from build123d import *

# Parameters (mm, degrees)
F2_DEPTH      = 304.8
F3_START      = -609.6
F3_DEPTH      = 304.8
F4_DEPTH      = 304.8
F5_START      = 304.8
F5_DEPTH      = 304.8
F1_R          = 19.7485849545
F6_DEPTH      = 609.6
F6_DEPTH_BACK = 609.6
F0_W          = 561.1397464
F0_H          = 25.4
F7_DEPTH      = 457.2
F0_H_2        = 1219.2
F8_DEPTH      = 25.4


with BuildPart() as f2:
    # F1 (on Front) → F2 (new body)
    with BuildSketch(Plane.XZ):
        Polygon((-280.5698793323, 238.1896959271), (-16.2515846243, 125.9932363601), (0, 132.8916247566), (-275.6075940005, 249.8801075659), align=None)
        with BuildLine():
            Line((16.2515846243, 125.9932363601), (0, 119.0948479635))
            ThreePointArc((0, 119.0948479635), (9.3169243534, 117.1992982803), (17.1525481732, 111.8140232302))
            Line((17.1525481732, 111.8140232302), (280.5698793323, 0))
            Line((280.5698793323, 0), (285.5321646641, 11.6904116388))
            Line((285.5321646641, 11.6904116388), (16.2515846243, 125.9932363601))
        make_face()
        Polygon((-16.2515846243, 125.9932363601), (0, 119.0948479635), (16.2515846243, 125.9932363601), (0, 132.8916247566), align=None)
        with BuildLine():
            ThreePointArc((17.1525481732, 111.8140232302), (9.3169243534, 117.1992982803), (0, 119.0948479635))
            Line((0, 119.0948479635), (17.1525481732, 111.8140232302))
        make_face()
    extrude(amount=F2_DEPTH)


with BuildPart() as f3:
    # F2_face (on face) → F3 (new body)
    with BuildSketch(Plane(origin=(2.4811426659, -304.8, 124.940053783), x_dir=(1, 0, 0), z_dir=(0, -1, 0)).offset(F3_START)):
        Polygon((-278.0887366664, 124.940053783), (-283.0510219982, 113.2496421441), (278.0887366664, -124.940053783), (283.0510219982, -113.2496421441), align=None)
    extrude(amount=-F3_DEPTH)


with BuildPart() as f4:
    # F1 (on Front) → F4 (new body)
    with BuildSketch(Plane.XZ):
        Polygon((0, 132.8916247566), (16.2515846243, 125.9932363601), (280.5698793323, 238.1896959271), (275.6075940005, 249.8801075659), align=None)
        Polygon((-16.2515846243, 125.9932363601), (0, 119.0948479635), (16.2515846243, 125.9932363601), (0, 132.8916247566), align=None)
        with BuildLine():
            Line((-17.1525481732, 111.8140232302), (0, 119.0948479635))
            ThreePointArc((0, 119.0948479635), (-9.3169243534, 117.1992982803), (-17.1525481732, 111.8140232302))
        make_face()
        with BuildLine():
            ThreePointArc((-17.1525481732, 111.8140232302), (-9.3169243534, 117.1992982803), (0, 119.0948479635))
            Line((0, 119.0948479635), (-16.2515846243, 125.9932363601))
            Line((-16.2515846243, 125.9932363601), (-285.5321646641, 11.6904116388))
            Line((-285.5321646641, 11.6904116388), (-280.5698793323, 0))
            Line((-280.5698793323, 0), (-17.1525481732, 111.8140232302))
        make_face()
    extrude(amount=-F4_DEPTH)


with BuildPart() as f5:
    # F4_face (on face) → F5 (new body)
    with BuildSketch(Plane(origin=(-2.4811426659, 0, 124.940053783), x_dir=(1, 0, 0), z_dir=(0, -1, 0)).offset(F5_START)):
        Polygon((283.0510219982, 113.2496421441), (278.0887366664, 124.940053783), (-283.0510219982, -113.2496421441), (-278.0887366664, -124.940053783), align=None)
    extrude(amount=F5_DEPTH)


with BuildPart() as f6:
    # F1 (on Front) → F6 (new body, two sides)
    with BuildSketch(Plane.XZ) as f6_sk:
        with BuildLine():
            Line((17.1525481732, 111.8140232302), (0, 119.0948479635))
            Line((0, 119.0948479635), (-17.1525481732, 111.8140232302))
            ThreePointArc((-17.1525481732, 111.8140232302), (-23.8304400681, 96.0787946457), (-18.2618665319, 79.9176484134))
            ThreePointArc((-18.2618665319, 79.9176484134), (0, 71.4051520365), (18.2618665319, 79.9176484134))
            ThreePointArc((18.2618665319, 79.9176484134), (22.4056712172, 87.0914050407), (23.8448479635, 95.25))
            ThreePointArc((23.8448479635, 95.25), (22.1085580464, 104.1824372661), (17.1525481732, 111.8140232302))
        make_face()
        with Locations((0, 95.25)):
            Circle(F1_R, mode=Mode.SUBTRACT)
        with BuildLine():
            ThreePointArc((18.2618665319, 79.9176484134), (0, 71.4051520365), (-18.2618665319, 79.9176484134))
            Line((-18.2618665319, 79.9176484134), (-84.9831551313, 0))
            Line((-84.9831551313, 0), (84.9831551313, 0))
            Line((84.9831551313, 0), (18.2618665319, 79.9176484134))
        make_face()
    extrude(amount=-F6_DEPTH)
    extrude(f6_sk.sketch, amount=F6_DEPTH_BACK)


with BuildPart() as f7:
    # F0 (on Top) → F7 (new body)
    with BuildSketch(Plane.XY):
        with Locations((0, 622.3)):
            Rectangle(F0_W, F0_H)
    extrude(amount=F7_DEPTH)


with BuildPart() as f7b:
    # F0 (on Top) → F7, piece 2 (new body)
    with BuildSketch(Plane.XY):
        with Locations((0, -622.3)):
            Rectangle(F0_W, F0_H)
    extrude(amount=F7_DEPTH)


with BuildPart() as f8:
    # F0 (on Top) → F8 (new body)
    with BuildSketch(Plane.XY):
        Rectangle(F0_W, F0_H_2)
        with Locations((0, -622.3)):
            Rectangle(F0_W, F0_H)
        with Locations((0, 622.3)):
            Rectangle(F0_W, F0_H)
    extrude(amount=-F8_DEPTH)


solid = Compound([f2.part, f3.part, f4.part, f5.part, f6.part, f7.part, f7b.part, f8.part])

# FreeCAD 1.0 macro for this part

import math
import FreeCAD as App
import Part
import Sketcher
Q = App.Units.Quantity

doc = App.newDocument("Part")
body = doc.addObject("PartDesign::Body", "Body")

# Sketch on XZ plane
sketch1 = body.newObject("Sketcher::SketchObject", "Sketch")
sketch1.AttachmentSupport = (doc.getObject("XZ_Plane"), [""])
sketch1.MapMode = "FlatFace"
sketch1.addGeometry([
    Part.LineSegment(App.Vector(-280.569879, 238.189696, 0), App.Vector(-16.251585, 125.993236, 0)),  # 0
    Part.LineSegment(App.Vector(-16.251585, 125.993236, 0), App.Vector(0, 119.094848, 0)),  # 1
    Part.LineSegment(App.Vector(0, 119.094848, 0), App.Vector(17.152548, 111.814023, 0)),  # 2
    Part.LineSegment(App.Vector(17.152548, 111.814023, 0), App.Vector(280.569879, 0, 0)),  # 3
    Part.LineSegment(App.Vector(280.569879, 0, 0), App.Vector(285.532165, 11.690412, 0)),  # 4
    Part.LineSegment(App.Vector(285.532165, 11.690412, 0), App.Vector(-275.607594, 249.880108, 0)),  # 5
    Part.LineSegment(App.Vector(-275.607594, 249.880108, 0), App.Vector(-280.569879, 238.189696, 0)),  # 6
], False)
sketch1.addConstraint([
    Sketcher.Constraint("Coincident", 0, 2, 1, 1),
    Sketcher.Constraint("Coincident", 1, 2, 2, 1),
    Sketcher.Constraint("Coincident", 2, 2, 3, 1),
    Sketcher.Constraint("Coincident", 3, 2, 4, 1),
    Sketcher.Constraint("Coincident", 4, 2, 5, 1),
    Sketcher.Constraint("Coincident", 5, 2, 6, 1),
    Sketcher.Constraint("Coincident", 6, 2, 0, 1),
    Sketcher.Constraint("PointOnObject", 1, 2, -2),
    Sketcher.Constraint("PointOnObject", 3, 2, -1),
    Sketcher.Constraint("Parallel", 0, 1),
    Sketcher.Constraint("Parallel", 1, 2),
    Sketcher.Constraint("Parallel", 2, 3),
    Sketcher.Constraint("Perpendicular", 3, 4),
    Sketcher.Constraint("Perpendicular", 4, 5),
    Sketcher.Constraint("Perpendicular", 5, 6),
    Sketcher.Constraint("Distance", 5, Q("24 in")),
    Sketcher.Constraint("Angle", 0, Q("-23 deg")),
    Sketcher.Constraint("Distance", 4, Q("0.5 in")),
    Sketcher.Constraint("Distance", 2, 18.633849),
    Sketcher.Constraint("Distance", 3, 286.166151),
    Sketcher.Constraint("DistanceY", 1, 2, 0, 2, 6.898388),
])
pad1 = body.newObject("PartDesign::Pad", "Pad")
pad1.Profile = sketch1
pad1.Length = Q("12 in")
body2 = doc.addObject("PartDesign::Body", "Body001")

# Sketch on XZ plane
sketch2 = body2.newObject("Sketcher::SketchObject", "Sketch001")
sketch2.AttachmentSupport = (doc.getObject("XZ_Plane001"), [""])
sketch2.MapMode = "FlatFace"
sketch2.AttachmentOffset = App.Placement(App.Vector(0, 0, -12 * 25.4), App.Rotation())
sketch2.addGeometry([
    Part.LineSegment(App.Vector(-275.607594, 249.880108, 0), App.Vector(-280.569879, 238.189696, 0)),
    Part.LineSegment(App.Vector(-280.569879, 238.189696, 0), App.Vector(280.569879, 0, 0)),
    Part.LineSegment(App.Vector(280.569879, 0, 0), App.Vector(285.532165, 11.690412, 0)),
    Part.LineSegment(App.Vector(285.532165, 11.690412, 0), App.Vector(-275.607594, 249.880108, 0)),
], False)
sketch2.addConstraint([
    Sketcher.Constraint("Coincident", 0, 2, 1, 1),
    Sketcher.Constraint("Coincident", 1, 2, 2, 1),
    Sketcher.Constraint("Coincident", 2, 2, 3, 1),
    Sketcher.Constraint("Coincident", 3, 2, 0, 1),
    Sketcher.Constraint("PointOnObject", 1, 2, -1),
    Sketcher.Constraint("Perpendicular", 0, 1),
    Sketcher.Constraint("Perpendicular", 1, 2),
    Sketcher.Constraint("Perpendicular", 2, 3),
    Sketcher.Constraint("Distance", 1, Q("24 in")),
    Sketcher.Constraint("Angle", 0, Q("-113 deg")),
    Sketcher.Constraint("Distance", 0, Q("0.5 in")),
    Sketcher.Constraint("DistanceX", 0, 2, -1, 1, 280.569879),
])
pad2 = body2.newObject("PartDesign::Pad", "Pad001")
pad2.Profile = sketch2
pad2.Length = Q("12 in")
pad2.Reversed = True
body3 = doc.addObject("PartDesign::Body", "Body002")

# Sketch on XZ plane
sketch3 = body3.newObject("Sketcher::SketchObject", "Sketch002")
sketch3.AttachmentSupport = (doc.getObject("XZ_Plane002"), [""])
sketch3.MapMode = "FlatFace"
sketch3.addGeometry([
    Part.LineSegment(App.Vector(16.251585, 125.993236, 0), App.Vector(280.569879, 238.189696, 0)),  # 0
    Part.LineSegment(App.Vector(280.569879, 238.189696, 0), App.Vector(275.607594, 249.880108, 0)),  # 1
    Part.LineSegment(App.Vector(275.607594, 249.880108, 0), App.Vector(-285.532165, 11.690412, 0)),  # 2
    Part.LineSegment(App.Vector(-285.532165, 11.690412, 0), App.Vector(-280.569879, 0, 0)),  # 3
    Part.LineSegment(App.Vector(-280.569879, 0, 0), App.Vector(-17.152548, 111.814023, 0)),  # 4
    Part.LineSegment(App.Vector(-17.152548, 111.814023, 0), App.Vector(0, 119.094848, 0)),  # 5
    Part.LineSegment(App.Vector(0, 119.094848, 0), App.Vector(16.251585, 125.993236, 0)),  # 6
], False)
sketch3.addConstraint([
    Sketcher.Constraint("Coincident", 0, 2, 1, 1),
    Sketcher.Constraint("Coincident", 1, 2, 2, 1),
    Sketcher.Constraint("Coincident", 2, 2, 3, 1),
    Sketcher.Constraint("Coincident", 3, 2, 4, 1),
    Sketcher.Constraint("Coincident", 4, 2, 5, 1),
    Sketcher.Constraint("Coincident", 5, 2, 6, 1),
    Sketcher.Constraint("Coincident", 6, 2, 0, 1),
    Sketcher.Constraint("PointOnObject", 3, 2, -1),
    Sketcher.Constraint("PointOnObject", 5, 2, -2),
    Sketcher.Constraint("Perpendicular", 0, 1),
    Sketcher.Constraint("Perpendicular", 1, 2),
    Sketcher.Constraint("Perpendicular", 2, 3),
    Sketcher.Constraint("Perpendicular", 3, 4),
    Sketcher.Constraint("Parallel", 4, 5),
    Sketcher.Constraint("Parallel", 5, 6),
    Sketcher.Constraint("Distance", 2, Q("24 in")),
    Sketcher.Constraint("Angle", 0, Q("23 deg")),
    Sketcher.Constraint("Distance", 1, Q("0.5 in")),
    Sketcher.Constraint("Distance", 4, 286.166151),
    Sketcher.Constraint("Distance", 5, 18.633849),
    Sketcher.Constraint("DistanceY", 5, 2, 6, 2, 6.898388),
])
pad3 = body3.newObject("PartDesign::Pad", "Pad002")
pad3.Profile = sketch3
pad3.Length = Q("12 in")
pad3.Reversed = True
body4 = doc.addObject("PartDesign::Body", "Body003")

# Sketch on XZ plane
sketch4 = body4.newObject("Sketcher::SketchObject", "Sketch003")
sketch4.AttachmentSupport = (doc.getObject("XZ_Plane003"), [""])
sketch4.MapMode = "FlatFace"
sketch4.AttachmentOffset = App.Placement(App.Vector(0, 0, 12 * 25.4), App.Rotation())
sketch4.addGeometry([
    Part.LineSegment(App.Vector(280.569879, 238.189696, 0), App.Vector(275.607594, 249.880108, 0)),
    Part.LineSegment(App.Vector(275.607594, 249.880108, 0), App.Vector(-285.532165, 11.690412, 0)),
    Part.LineSegment(App.Vector(-285.532165, 11.690412, 0), App.Vector(-280.569879, 0, 0)),
    Part.LineSegment(App.Vector(-280.569879, 0, 0), App.Vector(280.569879, 238.189696, 0)),
], False)
sketch4.addConstraint([
    Sketcher.Constraint("Coincident", 0, 2, 1, 1),
    Sketcher.Constraint("Coincident", 1, 2, 2, 1),
    Sketcher.Constraint("Coincident", 2, 2, 3, 1),
    Sketcher.Constraint("Coincident", 3, 2, 0, 1),
    Sketcher.Constraint("PointOnObject", 2, 2, -1),
    Sketcher.Constraint("Perpendicular", 0, 1),
    Sketcher.Constraint("Perpendicular", 1, 2),
    Sketcher.Constraint("Perpendicular", 2, 3),
    Sketcher.Constraint("Distance", 1, Q("24 in")),
    Sketcher.Constraint("Angle", 0, Q("113 deg")),
    Sketcher.Constraint("Distance", 0, Q("0.5 in")),
    Sketcher.Constraint("DistanceX", 2, 2, -1, 1, 280.569879),
])
pad4 = body4.newObject("PartDesign::Pad", "Pad003")
pad4.Profile = sketch4
pad4.Length = Q("12 in")
body5 = doc.addObject("PartDesign::Body", "Body004")

# Sketch on XZ plane
sketch5 = body5.newObject("Sketcher::SketchObject", "Sketch004")
sketch5.AttachmentSupport = (doc.getObject("XZ_Plane004"), [""])
sketch5.MapMode = "FlatFace"
sketch5.addGeometry([
    Part.LineSegment(App.Vector(17.152548, 111.814023, 0), App.Vector(0, 119.094848, 0)),  # 0
    Part.LineSegment(App.Vector(0, 119.094848, 0), App.Vector(-17.152548, 111.814023, 0)),  # 1
    Part.ArcOfCircle(Part.Circle(App.Vector(0, 95.25, 0), App.Vector(0, 0, 1), 23.844848), math.radians(136), math.radians(220.016246)),  # 2
    Part.LineSegment(App.Vector(-18.261867, 79.917648, 0), App.Vector(-84.983155, 0, 0)),  # 3
    Part.LineSegment(App.Vector(-84.983155, 0, 0), App.Vector(84.983155, 0, 0)),  # 4
    Part.LineSegment(App.Vector(84.983155, 0, 0), App.Vector(18.261867, 79.917648, 0)),  # 5
    Part.ArcOfCircle(Part.Circle(App.Vector(0, 95.25, 0), App.Vector(0, 0, 1), 23.844848), math.radians(-40.016246), math.radians(0)),  # 6
    Part.ArcOfCircle(Part.Circle(App.Vector(0, 95.25, 0), App.Vector(0, 0, 1), 23.844848), math.radians(0), math.radians(44)),  # 7
    Part.Circle(App.Vector(0, 95.25, 0), App.Vector(0, 0, 1), 19.748585),  # 8
], False)
sketch5.addConstraint([
    Sketcher.Constraint("Coincident", 0, 2, 1, 1),
    Sketcher.Constraint("Coincident", 1, 2, 2, 1),
    Sketcher.Constraint("Coincident", 2, 2, 3, 1),
    Sketcher.Constraint("Coincident", 3, 2, 4, 1),
    Sketcher.Constraint("Coincident", 4, 2, 5, 1),
    Sketcher.Constraint("Coincident", 5, 2, 6, 1),
    Sketcher.Constraint("Tangent", 6, 2, 7, 1),
    Sketcher.Constraint("Coincident", 7, 2, 0, 1),
    Sketcher.Constraint("Horizontal", 4),
    Sketcher.Constraint("Coincident", 6, 3, 2, 3),
    Sketcher.Constraint("Coincident", 8, 3, 2, 3),
    Sketcher.Constraint("Equal", 2, 6),
    Sketcher.Constraint("Equal", 6, 7),
    Sketcher.Constraint("Symmetric", 3, 2, 4, 2, -1, 1),
    Sketcher.Constraint("Symmetric", 2, 2, 5, 2, -2),
    Sketcher.Constraint("PointOnObject", 0, 2, -2),
    Sketcher.Constraint("Horizontal", 8, 3, 6, 2),
    Sketcher.Constraint("Horizontal", 1, 2, 7, 2),
    Sketcher.Constraint("Angle", 0, Q("157 deg")),
    Sketcher.Constraint("DistanceY", -1, 1, 2, 3, Q("3.75 in")),
    Sketcher.Constraint("Diameter", 8, 39.49717),
    Sketcher.Constraint("Radius", 2, 23.844848),
    Sketcher.Constraint("DistanceX", 4, 1, 4, 2, 169.96631),
    Sketcher.Constraint("DistanceX", 7, 2, 6, 2, 6.6923),
    Sketcher.Constraint("Distance", 3, 104.108409),
])
pad5 = body5.newObject("PartDesign::Pad", "Pad004")
pad5.Profile = sketch5
pad5.Type = "TwoLengths"
pad5.Length = Q("24 in")
pad5.Length2 = Q("24 in")
pad5.Reversed = True
body6 = doc.addObject("PartDesign::Body", "Body005")

# Sketch on XY plane
sketch6 = body6.newObject("Sketcher::SketchObject", "Sketch005")
sketch6.AttachmentSupport = (doc.getObject("XY_Plane005"), [""])
sketch6.MapMode = "FlatFace"
sketch6.addGeometry([
    Part.LineSegment(App.Vector(-280.569873, 635, 0), App.Vector(-280.569873, 609.6, 0)),
    Part.LineSegment(App.Vector(-280.569873, 609.6, 0), App.Vector(280.569873, 609.6, 0)),
    Part.LineSegment(App.Vector(280.569873, 609.6, 0), App.Vector(280.569873, 635, 0)),
    Part.LineSegment(App.Vector(280.569873, 635, 0), App.Vector(-280.569873, 635, 0)),
], False)
sketch6.addConstraint([
    Sketcher.Constraint("Coincident", 0, 2, 1, 1),
    Sketcher.Constraint("Coincident", 1, 2, 2, 1),
    Sketcher.Constraint("Coincident", 2, 2, 3, 1),
    Sketcher.Constraint("Coincident", 3, 2, 0, 1),
    Sketcher.Constraint("Vertical", 0),
    Sketcher.Constraint("Horizontal", 1),
    Sketcher.Constraint("Vertical", 2),
    Sketcher.Constraint("Horizontal", 3),
    Sketcher.Constraint("DistanceY", 0, 2, 0, 1, Q("1 in")),
    Sketcher.Constraint("DistanceY", -1, 1, 0, 2, Q("24 in")),
    Sketcher.Constraint("DistanceX", 1, 1, 1, 2, 561.139746),
    Sketcher.Constraint("DistanceX", 0, 2, -1, 1, 280.569873),
])
pad6 = body6.newObject("PartDesign::Pad", "Pad005")
pad6.Profile = sketch6
pad6.Length = Q("18 in")
body7 = doc.addObject("PartDesign::Body", "Body006")

# Sketch on XY plane
sketch7 = body7.newObject("Sketcher::SketchObject", "Sketch006")
sketch7.AttachmentSupport = (doc.getObject("XY_Plane006"), [""])
sketch7.MapMode = "FlatFace"
sketch7.addGeometry([
    Part.LineSegment(App.Vector(-280.569873, -609.6, 0), App.Vector(-280.569873, -635, 0)),
    Part.LineSegment(App.Vector(-280.569873, -635, 0), App.Vector(280.569873, -635, 0)),
    Part.LineSegment(App.Vector(280.569873, -635, 0), App.Vector(280.569873, -609.6, 0)),
    Part.LineSegment(App.Vector(280.569873, -609.6, 0), App.Vector(-280.569873, -609.6, 0)),
], False)
sketch7.addConstraint([
    Sketcher.Constraint("Coincident", 0, 2, 1, 1),
    Sketcher.Constraint("Coincident", 1, 2, 2, 1),
    Sketcher.Constraint("Coincident", 2, 2, 3, 1),
    Sketcher.Constraint("Coincident", 3, 2, 0, 1),
    Sketcher.Constraint("Vertical", 0),
    Sketcher.Constraint("Horizontal", 1),
    Sketcher.Constraint("Vertical", 2),
    Sketcher.Constraint("Horizontal", 3),
    Sketcher.Constraint("DistanceY", 0, 2, 0, 1, Q("1 in")),
    Sketcher.Constraint("DistanceY", 0, 2, -1, 1, Q("25 in")),
    Sketcher.Constraint("DistanceX", 1, 1, 1, 2, 561.139746),
    Sketcher.Constraint("DistanceX", 0, 2, -1, 1, 280.569873),
])
pad7 = body7.newObject("PartDesign::Pad", "Pad006")
pad7.Profile = sketch7
pad7.Length = Q("18 in")
body8 = doc.addObject("PartDesign::Body", "Body007")

# Sketch on XY plane
sketch8 = body8.newObject("Sketcher::SketchObject", "Sketch007")
sketch8.AttachmentSupport = (doc.getObject("XY_Plane007"), [""])
sketch8.MapMode = "FlatFace"
sketch8.addGeometry([
    Part.LineSegment(App.Vector(-280.569873, -635, 0), App.Vector(280.569873, -635, 0)),
    Part.LineSegment(App.Vector(280.569873, -635, 0), App.Vector(280.569873, 635, 0)),
    Part.LineSegment(App.Vector(280.569873, 635, 0), App.Vector(-280.569873, 635, 0)),
    Part.LineSegment(App.Vector(-280.569873, 635, 0), App.Vector(-280.569873, -635, 0)),
], False)
sketch8.addConstraint([
    Sketcher.Constraint("Coincident", 0, 2, 1, 1),
    Sketcher.Constraint("Coincident", 1, 2, 2, 1),
    Sketcher.Constraint("Coincident", 2, 2, 3, 1),
    Sketcher.Constraint("Coincident", 3, 2, 0, 1),
    Sketcher.Constraint("Horizontal", 0),
    Sketcher.Constraint("Vertical", 1),
    Sketcher.Constraint("Horizontal", 2),
    Sketcher.Constraint("Vertical", 3),
    Sketcher.Constraint("Symmetric", 0, 2, 2, 2, -1, 1),
    Sketcher.Constraint("DistanceY", 1, 1, 1, 2, Q("50 in")),
    Sketcher.Constraint("DistanceX", 0, 1, 0, 2, 561.139746),
])
pad8 = body8.newObject("PartDesign::Pad", "Pad007")
pad8.Profile = sketch8
pad8.Length = Q("1 in")
pad8.Reversed = True

doc.recompute()
